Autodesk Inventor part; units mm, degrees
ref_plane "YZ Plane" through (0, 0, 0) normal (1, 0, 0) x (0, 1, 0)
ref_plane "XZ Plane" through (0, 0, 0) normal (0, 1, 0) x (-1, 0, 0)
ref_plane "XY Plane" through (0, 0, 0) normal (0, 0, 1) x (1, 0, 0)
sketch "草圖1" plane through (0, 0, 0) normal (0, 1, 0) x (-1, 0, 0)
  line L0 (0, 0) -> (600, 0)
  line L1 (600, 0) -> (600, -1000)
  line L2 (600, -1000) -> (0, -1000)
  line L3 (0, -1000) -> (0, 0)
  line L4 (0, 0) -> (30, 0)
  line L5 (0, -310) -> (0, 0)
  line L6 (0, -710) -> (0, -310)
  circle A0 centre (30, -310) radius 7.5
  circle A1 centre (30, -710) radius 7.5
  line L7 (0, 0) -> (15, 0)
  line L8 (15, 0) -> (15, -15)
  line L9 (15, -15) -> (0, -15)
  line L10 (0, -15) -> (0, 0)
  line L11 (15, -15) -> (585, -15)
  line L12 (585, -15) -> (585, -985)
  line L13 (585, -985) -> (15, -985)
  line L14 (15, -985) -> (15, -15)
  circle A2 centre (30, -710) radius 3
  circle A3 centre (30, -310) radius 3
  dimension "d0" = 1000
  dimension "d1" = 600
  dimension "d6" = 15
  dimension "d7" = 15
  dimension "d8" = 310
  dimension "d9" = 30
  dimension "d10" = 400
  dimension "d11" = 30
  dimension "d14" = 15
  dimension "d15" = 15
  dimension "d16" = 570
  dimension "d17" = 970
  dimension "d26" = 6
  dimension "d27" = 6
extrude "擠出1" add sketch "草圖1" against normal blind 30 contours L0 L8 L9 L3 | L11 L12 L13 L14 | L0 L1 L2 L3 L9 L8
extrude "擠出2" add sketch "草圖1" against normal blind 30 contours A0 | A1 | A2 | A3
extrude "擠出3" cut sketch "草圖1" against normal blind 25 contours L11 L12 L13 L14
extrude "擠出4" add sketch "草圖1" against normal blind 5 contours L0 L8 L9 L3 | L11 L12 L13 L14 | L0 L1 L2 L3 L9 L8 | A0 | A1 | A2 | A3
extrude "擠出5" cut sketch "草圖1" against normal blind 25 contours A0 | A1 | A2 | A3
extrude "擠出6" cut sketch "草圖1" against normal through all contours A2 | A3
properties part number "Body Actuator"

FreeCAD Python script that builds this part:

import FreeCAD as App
import Part
import Sketcher
from FreeCAD import Vector
Q = App.Units.Quantity

doc = App.newDocument("Part")
body = doc.addObject("PartDesign::Body", "Body")

sketch1 = body.newObject("Sketcher::SketchObject", "Sketch")
sketch1.AttachmentSupport = (doc.getObject("XZ_Plane"), [""])
sketch1.MapMode = "FlatFace"
sketch1.addGeometry(Part.LineSegment(Vector(0, 0, 0), Vector(0, -1000, 0)), False)
sketch1.addGeometry(Part.LineSegment(Vector(0, -1000, 0), Vector(-600, -1000, 0)), False)
sketch1.addGeometry(Part.LineSegment(Vector(-600, -1000, 0), Vector(-600, 0, 0)), False)
sketch1.addGeometry(Part.LineSegment(Vector(-600, 0, 0), Vector(0, 0, 0)), False)
sketch1.addGeometry(Part.Circle(Vector(-30, -710, 0), Vector(0, 0, 1), 8), False)
sketch1.addGeometry(Part.Circle(Vector(-30, -310, 0), Vector(0, 0, 1), 8), False)
sketch1.addConstraint(Sketcher.Constraint("Coincident", 0, 2, 1, 1))
sketch1.addConstraint(Sketcher.Constraint("Coincident", 1, 2, 2, 1))
sketch1.addConstraint(Sketcher.Constraint("Coincident", 2, 2, 3, 1))
sketch1.addConstraint(Sketcher.Constraint("Coincident", 3, 2, 0, 1))
sketch1.addConstraint(Sketcher.Constraint("Vertical", 0))
sketch1.addConstraint(Sketcher.Constraint("Horizontal", 1))
sketch1.addConstraint(Sketcher.Constraint("Vertical", 2))
sketch1.addConstraint(Sketcher.Constraint("Horizontal", 3))
sketch1.addConstraint(Sketcher.Constraint("Coincident", 3, 2, -1, 1))
sketch1.addConstraint(Sketcher.Constraint("Equal", 4, 5))
sketch1.addConstraint(Sketcher.Constraint("Vertical", 4, 3, 5, 3))
sketch1.addConstraint(Sketcher.Constraint("Diameter", 4, Q("15 mm")))
sketch1.addConstraint(Sketcher.Constraint("DistanceX", 1, 2, 1, 1, Q("600 mm")))
sketch1.addConstraint(Sketcher.Constraint("DistanceY", 0, 2, 0, 1, Q("1000 mm")))
sketch1.addConstraint(Sketcher.Constraint("DistanceX", 4, 3, -1, 1, Q("30 mm")))
sketch1.addConstraint(Sketcher.Constraint("DistanceY", 5, 3, -1, 1, Q("310 mm")))
sketch1.addConstraint(Sketcher.Constraint("DistanceY", 4, 3, 5, 3, Q("400 mm")))
pad1 = body.newObject("PartDesign::Pad", "Pad")
pad1.Profile = sketch1
pad1.Length = 30

sketch2 = body.newObject("Sketcher::SketchObject", "Sketch001")
sketch2.AttachmentSupport = (doc.getObject("XZ_Plane"), [""])
sketch2.MapMode = "FlatFace"
sketch2.addGeometry(Part.Circle(Vector(-30, -310, 0), Vector(0, 0, 1), 8), False)
sketch2.addGeometry(Part.Circle(Vector(-30, -710, 0), Vector(0, 0, 1), 8), False)
sketch2.addConstraint(Sketcher.Constraint("Equal", 0, 1))
sketch2.addConstraint(Sketcher.Constraint("Vertical", 0, 3, 1, 3))
sketch2.addConstraint(Sketcher.Constraint("Diameter", 0, Q("15 mm")))
sketch2.addConstraint(Sketcher.Constraint("DistanceX", 0, 3, -1, 1, Q("30 mm")))
sketch2.addConstraint(Sketcher.Constraint("DistanceY", 0, 3, -1, 1, Q("310 mm")))
sketch2.addConstraint(Sketcher.Constraint("DistanceY", 1, 3, 0, 3, Q("400 mm")))
pad2 = body.newObject("PartDesign::Pad", "Pad001")
pad2.Profile = sketch2
pad2.Length = 30

sketch3 = body.newObject("Sketcher::SketchObject", "Sketch002")
sketch3.AttachmentSupport = (doc.getObject("XZ_Plane"), [""])
sketch3.MapMode = "FlatFace"
sketch3.addGeometry(Part.LineSegment(Vector(-585, -15, 0), Vector(-15, -15, 0)), False)
sketch3.addGeometry(Part.LineSegment(Vector(-15, -15, 0), Vector(-15, -985, 0)), False)
sketch3.addGeometry(Part.LineSegment(Vector(-15, -985, 0), Vector(-585, -985, 0)), False)
sketch3.addGeometry(Part.LineSegment(Vector(-585, -985, 0), Vector(-585, -15, 0)), False)
sketch3.addGeometry(Part.Circle(Vector(-30, -710, 0), Vector(0, 0, 1), 8), False)
sketch3.addGeometry(Part.Circle(Vector(-30, -310, 0), Vector(0, 0, 1), 8), False)
sketch3.addConstraint(Sketcher.Constraint("Coincident", 0, 2, 1, 1))
sketch3.addConstraint(Sketcher.Constraint("Coincident", 1, 2, 2, 1))
sketch3.addConstraint(Sketcher.Constraint("Coincident", 2, 2, 3, 1))
sketch3.addConstraint(Sketcher.Constraint("Coincident", 3, 2, 0, 1))
sketch3.addConstraint(Sketcher.Constraint("Horizontal", 0))
sketch3.addConstraint(Sketcher.Constraint("Vertical", 1))
sketch3.addConstraint(Sketcher.Constraint("Horizontal", 2))
sketch3.addConstraint(Sketcher.Constraint("Vertical", 3))
sketch3.addConstraint(Sketcher.Constraint("Equal", 4, 5))
sketch3.addConstraint(Sketcher.Constraint("Vertical", 4, 3, 5, 3))
sketch3.addConstraint(Sketcher.Constraint("Diameter", 4, Q("15 mm")))
sketch3.addConstraint(Sketcher.Constraint("DistanceX", 0, 1, 0, 2, Q("570 mm")))
sketch3.addConstraint(Sketcher.Constraint("DistanceY", 1, 2, 1, 1, Q("970 mm")))
sketch3.addConstraint(Sketcher.Constraint("DistanceX", 4, 3, -1, 1, Q("30 mm")))
sketch3.addConstraint(Sketcher.Constraint("DistanceY", 5, 3, -1, 1, Q("310 mm")))
sketch3.addConstraint(Sketcher.Constraint("DistanceX", 0, 2, -1, 1, Q("15 mm")))
sketch3.addConstraint(Sketcher.Constraint("DistanceY", 0, 2, -1, 1, Q("15 mm")))
sketch3.addConstraint(Sketcher.Constraint("DistanceY", 4, 3, 5, 3, Q("400 mm")))
pocket1 = body.newObject("PartDesign::Pocket", "Pocket")
pocket1.Profile = sketch3
pocket1.Length = 25
pocket1.Reversed = True

sketch4 = body.newObject("Sketcher::SketchObject", "Sketch003")
sketch4.AttachmentSupport = (doc.getObject("XZ_Plane"), [""])
sketch4.MapMode = "FlatFace"
sketch4.addGeometry(Part.LineSegment(Vector(0, 0, 0), Vector(0, -1000, 0)), False)
sketch4.addGeometry(Part.LineSegment(Vector(0, -1000, 0), Vector(-600, -1000, 0)), False)
sketch4.addGeometry(Part.LineSegment(Vector(-600, -1000, 0), Vector(-600, 0, 0)), False)
sketch4.addGeometry(Part.LineSegment(Vector(-600, 0, 0), Vector(0, 0, 0)), False)
sketch4.addConstraint(Sketcher.Constraint("Coincident", 0, 2, 1, 1))
sketch4.addConstraint(Sketcher.Constraint("Coincident", 1, 2, 2, 1))
sketch4.addConstraint(Sketcher.Constraint("Coincident", 2, 2, 3, 1))
sketch4.addConstraint(Sketcher.Constraint("Coincident", 3, 2, 0, 1))
sketch4.addConstraint(Sketcher.Constraint("Vertical", 0))
sketch4.addConstraint(Sketcher.Constraint("Horizontal", 1))
sketch4.addConstraint(Sketcher.Constraint("Vertical", 2))
sketch4.addConstraint(Sketcher.Constraint("Horizontal", 3))
sketch4.addConstraint(Sketcher.Constraint("Coincident", 3, 2, -1, 1))
sketch4.addConstraint(Sketcher.Constraint("DistanceX", 1, 2, 1, 1, Q("600 mm")))
sketch4.addConstraint(Sketcher.Constraint("DistanceY", 0, 2, 0, 1, Q("1000 mm")))
pad3 = body.newObject("PartDesign::Pad", "Pad002")
pad3.Profile = sketch4
pad3.Length = 5

sketch5 = body.newObject("Sketcher::SketchObject", "Sketch004")
sketch5.AttachmentSupport = (doc.getObject("XZ_Plane"), [""])
sketch5.MapMode = "FlatFace"
sketch5.addGeometry(Part.Circle(Vector(-30, -310, 0), Vector(0, 0, 1), 8), False)
sketch5.addGeometry(Part.Circle(Vector(-30, -710, 0), Vector(0, 0, 1), 8), False)
sketch5.addConstraint(Sketcher.Constraint("Equal", 0, 1))
sketch5.addConstraint(Sketcher.Constraint("Vertical", 0, 3, 1, 3))
sketch5.addConstraint(Sketcher.Constraint("Diameter", 0, Q("15 mm")))
sketch5.addConstraint(Sketcher.Constraint("DistanceX", 0, 3, -1, 1, Q("30 mm")))
sketch5.addConstraint(Sketcher.Constraint("DistanceY", 0, 3, -1, 1, Q("310 mm")))
sketch5.addConstraint(Sketcher.Constraint("DistanceY", 1, 3, 0, 3, Q("400 mm")))
pocket2 = body.newObject("PartDesign::Pocket", "Pocket001")
pocket2.Profile = sketch5
pocket2.Length = 25
pocket2.Reversed = True

sketch6 = body.newObject("Sketcher::SketchObject", "Sketch005")
sketch6.AttachmentSupport = (doc.getObject("XZ_Plane"), [""])
sketch6.MapMode = "FlatFace"
sketch6.addGeometry(Part.Circle(Vector(-30, -710, 0), Vector(0, 0, 1), 3), False)
sketch6.addGeometry(Part.Circle(Vector(-30, -310, 0), Vector(0, 0, 1), 3), False)
sketch6.addConstraint(Sketcher.Constraint("Equal", 0, 1))
sketch6.addConstraint(Sketcher.Constraint("Vertical", 0, 3, 1, 3))
sketch6.addConstraint(Sketcher.Constraint("Diameter", 0, Q("6 mm")))
sketch6.addConstraint(Sketcher.Constraint("DistanceX", 0, 3, -1, 1, Q("30 mm")))
sketch6.addConstraint(Sketcher.Constraint("DistanceY", 1, 3, -1, 1, Q("310 mm")))
sketch6.addConstraint(Sketcher.Constraint("DistanceY", 0, 3, 1, 3, Q("400 mm")))
pocket3 = body.newObject("PartDesign::Pocket", "Pocket002")
pocket3.Profile = sketch6
pocket3.Type = "ThroughAll"
pocket3.Reversed = True

doc.recompute()
